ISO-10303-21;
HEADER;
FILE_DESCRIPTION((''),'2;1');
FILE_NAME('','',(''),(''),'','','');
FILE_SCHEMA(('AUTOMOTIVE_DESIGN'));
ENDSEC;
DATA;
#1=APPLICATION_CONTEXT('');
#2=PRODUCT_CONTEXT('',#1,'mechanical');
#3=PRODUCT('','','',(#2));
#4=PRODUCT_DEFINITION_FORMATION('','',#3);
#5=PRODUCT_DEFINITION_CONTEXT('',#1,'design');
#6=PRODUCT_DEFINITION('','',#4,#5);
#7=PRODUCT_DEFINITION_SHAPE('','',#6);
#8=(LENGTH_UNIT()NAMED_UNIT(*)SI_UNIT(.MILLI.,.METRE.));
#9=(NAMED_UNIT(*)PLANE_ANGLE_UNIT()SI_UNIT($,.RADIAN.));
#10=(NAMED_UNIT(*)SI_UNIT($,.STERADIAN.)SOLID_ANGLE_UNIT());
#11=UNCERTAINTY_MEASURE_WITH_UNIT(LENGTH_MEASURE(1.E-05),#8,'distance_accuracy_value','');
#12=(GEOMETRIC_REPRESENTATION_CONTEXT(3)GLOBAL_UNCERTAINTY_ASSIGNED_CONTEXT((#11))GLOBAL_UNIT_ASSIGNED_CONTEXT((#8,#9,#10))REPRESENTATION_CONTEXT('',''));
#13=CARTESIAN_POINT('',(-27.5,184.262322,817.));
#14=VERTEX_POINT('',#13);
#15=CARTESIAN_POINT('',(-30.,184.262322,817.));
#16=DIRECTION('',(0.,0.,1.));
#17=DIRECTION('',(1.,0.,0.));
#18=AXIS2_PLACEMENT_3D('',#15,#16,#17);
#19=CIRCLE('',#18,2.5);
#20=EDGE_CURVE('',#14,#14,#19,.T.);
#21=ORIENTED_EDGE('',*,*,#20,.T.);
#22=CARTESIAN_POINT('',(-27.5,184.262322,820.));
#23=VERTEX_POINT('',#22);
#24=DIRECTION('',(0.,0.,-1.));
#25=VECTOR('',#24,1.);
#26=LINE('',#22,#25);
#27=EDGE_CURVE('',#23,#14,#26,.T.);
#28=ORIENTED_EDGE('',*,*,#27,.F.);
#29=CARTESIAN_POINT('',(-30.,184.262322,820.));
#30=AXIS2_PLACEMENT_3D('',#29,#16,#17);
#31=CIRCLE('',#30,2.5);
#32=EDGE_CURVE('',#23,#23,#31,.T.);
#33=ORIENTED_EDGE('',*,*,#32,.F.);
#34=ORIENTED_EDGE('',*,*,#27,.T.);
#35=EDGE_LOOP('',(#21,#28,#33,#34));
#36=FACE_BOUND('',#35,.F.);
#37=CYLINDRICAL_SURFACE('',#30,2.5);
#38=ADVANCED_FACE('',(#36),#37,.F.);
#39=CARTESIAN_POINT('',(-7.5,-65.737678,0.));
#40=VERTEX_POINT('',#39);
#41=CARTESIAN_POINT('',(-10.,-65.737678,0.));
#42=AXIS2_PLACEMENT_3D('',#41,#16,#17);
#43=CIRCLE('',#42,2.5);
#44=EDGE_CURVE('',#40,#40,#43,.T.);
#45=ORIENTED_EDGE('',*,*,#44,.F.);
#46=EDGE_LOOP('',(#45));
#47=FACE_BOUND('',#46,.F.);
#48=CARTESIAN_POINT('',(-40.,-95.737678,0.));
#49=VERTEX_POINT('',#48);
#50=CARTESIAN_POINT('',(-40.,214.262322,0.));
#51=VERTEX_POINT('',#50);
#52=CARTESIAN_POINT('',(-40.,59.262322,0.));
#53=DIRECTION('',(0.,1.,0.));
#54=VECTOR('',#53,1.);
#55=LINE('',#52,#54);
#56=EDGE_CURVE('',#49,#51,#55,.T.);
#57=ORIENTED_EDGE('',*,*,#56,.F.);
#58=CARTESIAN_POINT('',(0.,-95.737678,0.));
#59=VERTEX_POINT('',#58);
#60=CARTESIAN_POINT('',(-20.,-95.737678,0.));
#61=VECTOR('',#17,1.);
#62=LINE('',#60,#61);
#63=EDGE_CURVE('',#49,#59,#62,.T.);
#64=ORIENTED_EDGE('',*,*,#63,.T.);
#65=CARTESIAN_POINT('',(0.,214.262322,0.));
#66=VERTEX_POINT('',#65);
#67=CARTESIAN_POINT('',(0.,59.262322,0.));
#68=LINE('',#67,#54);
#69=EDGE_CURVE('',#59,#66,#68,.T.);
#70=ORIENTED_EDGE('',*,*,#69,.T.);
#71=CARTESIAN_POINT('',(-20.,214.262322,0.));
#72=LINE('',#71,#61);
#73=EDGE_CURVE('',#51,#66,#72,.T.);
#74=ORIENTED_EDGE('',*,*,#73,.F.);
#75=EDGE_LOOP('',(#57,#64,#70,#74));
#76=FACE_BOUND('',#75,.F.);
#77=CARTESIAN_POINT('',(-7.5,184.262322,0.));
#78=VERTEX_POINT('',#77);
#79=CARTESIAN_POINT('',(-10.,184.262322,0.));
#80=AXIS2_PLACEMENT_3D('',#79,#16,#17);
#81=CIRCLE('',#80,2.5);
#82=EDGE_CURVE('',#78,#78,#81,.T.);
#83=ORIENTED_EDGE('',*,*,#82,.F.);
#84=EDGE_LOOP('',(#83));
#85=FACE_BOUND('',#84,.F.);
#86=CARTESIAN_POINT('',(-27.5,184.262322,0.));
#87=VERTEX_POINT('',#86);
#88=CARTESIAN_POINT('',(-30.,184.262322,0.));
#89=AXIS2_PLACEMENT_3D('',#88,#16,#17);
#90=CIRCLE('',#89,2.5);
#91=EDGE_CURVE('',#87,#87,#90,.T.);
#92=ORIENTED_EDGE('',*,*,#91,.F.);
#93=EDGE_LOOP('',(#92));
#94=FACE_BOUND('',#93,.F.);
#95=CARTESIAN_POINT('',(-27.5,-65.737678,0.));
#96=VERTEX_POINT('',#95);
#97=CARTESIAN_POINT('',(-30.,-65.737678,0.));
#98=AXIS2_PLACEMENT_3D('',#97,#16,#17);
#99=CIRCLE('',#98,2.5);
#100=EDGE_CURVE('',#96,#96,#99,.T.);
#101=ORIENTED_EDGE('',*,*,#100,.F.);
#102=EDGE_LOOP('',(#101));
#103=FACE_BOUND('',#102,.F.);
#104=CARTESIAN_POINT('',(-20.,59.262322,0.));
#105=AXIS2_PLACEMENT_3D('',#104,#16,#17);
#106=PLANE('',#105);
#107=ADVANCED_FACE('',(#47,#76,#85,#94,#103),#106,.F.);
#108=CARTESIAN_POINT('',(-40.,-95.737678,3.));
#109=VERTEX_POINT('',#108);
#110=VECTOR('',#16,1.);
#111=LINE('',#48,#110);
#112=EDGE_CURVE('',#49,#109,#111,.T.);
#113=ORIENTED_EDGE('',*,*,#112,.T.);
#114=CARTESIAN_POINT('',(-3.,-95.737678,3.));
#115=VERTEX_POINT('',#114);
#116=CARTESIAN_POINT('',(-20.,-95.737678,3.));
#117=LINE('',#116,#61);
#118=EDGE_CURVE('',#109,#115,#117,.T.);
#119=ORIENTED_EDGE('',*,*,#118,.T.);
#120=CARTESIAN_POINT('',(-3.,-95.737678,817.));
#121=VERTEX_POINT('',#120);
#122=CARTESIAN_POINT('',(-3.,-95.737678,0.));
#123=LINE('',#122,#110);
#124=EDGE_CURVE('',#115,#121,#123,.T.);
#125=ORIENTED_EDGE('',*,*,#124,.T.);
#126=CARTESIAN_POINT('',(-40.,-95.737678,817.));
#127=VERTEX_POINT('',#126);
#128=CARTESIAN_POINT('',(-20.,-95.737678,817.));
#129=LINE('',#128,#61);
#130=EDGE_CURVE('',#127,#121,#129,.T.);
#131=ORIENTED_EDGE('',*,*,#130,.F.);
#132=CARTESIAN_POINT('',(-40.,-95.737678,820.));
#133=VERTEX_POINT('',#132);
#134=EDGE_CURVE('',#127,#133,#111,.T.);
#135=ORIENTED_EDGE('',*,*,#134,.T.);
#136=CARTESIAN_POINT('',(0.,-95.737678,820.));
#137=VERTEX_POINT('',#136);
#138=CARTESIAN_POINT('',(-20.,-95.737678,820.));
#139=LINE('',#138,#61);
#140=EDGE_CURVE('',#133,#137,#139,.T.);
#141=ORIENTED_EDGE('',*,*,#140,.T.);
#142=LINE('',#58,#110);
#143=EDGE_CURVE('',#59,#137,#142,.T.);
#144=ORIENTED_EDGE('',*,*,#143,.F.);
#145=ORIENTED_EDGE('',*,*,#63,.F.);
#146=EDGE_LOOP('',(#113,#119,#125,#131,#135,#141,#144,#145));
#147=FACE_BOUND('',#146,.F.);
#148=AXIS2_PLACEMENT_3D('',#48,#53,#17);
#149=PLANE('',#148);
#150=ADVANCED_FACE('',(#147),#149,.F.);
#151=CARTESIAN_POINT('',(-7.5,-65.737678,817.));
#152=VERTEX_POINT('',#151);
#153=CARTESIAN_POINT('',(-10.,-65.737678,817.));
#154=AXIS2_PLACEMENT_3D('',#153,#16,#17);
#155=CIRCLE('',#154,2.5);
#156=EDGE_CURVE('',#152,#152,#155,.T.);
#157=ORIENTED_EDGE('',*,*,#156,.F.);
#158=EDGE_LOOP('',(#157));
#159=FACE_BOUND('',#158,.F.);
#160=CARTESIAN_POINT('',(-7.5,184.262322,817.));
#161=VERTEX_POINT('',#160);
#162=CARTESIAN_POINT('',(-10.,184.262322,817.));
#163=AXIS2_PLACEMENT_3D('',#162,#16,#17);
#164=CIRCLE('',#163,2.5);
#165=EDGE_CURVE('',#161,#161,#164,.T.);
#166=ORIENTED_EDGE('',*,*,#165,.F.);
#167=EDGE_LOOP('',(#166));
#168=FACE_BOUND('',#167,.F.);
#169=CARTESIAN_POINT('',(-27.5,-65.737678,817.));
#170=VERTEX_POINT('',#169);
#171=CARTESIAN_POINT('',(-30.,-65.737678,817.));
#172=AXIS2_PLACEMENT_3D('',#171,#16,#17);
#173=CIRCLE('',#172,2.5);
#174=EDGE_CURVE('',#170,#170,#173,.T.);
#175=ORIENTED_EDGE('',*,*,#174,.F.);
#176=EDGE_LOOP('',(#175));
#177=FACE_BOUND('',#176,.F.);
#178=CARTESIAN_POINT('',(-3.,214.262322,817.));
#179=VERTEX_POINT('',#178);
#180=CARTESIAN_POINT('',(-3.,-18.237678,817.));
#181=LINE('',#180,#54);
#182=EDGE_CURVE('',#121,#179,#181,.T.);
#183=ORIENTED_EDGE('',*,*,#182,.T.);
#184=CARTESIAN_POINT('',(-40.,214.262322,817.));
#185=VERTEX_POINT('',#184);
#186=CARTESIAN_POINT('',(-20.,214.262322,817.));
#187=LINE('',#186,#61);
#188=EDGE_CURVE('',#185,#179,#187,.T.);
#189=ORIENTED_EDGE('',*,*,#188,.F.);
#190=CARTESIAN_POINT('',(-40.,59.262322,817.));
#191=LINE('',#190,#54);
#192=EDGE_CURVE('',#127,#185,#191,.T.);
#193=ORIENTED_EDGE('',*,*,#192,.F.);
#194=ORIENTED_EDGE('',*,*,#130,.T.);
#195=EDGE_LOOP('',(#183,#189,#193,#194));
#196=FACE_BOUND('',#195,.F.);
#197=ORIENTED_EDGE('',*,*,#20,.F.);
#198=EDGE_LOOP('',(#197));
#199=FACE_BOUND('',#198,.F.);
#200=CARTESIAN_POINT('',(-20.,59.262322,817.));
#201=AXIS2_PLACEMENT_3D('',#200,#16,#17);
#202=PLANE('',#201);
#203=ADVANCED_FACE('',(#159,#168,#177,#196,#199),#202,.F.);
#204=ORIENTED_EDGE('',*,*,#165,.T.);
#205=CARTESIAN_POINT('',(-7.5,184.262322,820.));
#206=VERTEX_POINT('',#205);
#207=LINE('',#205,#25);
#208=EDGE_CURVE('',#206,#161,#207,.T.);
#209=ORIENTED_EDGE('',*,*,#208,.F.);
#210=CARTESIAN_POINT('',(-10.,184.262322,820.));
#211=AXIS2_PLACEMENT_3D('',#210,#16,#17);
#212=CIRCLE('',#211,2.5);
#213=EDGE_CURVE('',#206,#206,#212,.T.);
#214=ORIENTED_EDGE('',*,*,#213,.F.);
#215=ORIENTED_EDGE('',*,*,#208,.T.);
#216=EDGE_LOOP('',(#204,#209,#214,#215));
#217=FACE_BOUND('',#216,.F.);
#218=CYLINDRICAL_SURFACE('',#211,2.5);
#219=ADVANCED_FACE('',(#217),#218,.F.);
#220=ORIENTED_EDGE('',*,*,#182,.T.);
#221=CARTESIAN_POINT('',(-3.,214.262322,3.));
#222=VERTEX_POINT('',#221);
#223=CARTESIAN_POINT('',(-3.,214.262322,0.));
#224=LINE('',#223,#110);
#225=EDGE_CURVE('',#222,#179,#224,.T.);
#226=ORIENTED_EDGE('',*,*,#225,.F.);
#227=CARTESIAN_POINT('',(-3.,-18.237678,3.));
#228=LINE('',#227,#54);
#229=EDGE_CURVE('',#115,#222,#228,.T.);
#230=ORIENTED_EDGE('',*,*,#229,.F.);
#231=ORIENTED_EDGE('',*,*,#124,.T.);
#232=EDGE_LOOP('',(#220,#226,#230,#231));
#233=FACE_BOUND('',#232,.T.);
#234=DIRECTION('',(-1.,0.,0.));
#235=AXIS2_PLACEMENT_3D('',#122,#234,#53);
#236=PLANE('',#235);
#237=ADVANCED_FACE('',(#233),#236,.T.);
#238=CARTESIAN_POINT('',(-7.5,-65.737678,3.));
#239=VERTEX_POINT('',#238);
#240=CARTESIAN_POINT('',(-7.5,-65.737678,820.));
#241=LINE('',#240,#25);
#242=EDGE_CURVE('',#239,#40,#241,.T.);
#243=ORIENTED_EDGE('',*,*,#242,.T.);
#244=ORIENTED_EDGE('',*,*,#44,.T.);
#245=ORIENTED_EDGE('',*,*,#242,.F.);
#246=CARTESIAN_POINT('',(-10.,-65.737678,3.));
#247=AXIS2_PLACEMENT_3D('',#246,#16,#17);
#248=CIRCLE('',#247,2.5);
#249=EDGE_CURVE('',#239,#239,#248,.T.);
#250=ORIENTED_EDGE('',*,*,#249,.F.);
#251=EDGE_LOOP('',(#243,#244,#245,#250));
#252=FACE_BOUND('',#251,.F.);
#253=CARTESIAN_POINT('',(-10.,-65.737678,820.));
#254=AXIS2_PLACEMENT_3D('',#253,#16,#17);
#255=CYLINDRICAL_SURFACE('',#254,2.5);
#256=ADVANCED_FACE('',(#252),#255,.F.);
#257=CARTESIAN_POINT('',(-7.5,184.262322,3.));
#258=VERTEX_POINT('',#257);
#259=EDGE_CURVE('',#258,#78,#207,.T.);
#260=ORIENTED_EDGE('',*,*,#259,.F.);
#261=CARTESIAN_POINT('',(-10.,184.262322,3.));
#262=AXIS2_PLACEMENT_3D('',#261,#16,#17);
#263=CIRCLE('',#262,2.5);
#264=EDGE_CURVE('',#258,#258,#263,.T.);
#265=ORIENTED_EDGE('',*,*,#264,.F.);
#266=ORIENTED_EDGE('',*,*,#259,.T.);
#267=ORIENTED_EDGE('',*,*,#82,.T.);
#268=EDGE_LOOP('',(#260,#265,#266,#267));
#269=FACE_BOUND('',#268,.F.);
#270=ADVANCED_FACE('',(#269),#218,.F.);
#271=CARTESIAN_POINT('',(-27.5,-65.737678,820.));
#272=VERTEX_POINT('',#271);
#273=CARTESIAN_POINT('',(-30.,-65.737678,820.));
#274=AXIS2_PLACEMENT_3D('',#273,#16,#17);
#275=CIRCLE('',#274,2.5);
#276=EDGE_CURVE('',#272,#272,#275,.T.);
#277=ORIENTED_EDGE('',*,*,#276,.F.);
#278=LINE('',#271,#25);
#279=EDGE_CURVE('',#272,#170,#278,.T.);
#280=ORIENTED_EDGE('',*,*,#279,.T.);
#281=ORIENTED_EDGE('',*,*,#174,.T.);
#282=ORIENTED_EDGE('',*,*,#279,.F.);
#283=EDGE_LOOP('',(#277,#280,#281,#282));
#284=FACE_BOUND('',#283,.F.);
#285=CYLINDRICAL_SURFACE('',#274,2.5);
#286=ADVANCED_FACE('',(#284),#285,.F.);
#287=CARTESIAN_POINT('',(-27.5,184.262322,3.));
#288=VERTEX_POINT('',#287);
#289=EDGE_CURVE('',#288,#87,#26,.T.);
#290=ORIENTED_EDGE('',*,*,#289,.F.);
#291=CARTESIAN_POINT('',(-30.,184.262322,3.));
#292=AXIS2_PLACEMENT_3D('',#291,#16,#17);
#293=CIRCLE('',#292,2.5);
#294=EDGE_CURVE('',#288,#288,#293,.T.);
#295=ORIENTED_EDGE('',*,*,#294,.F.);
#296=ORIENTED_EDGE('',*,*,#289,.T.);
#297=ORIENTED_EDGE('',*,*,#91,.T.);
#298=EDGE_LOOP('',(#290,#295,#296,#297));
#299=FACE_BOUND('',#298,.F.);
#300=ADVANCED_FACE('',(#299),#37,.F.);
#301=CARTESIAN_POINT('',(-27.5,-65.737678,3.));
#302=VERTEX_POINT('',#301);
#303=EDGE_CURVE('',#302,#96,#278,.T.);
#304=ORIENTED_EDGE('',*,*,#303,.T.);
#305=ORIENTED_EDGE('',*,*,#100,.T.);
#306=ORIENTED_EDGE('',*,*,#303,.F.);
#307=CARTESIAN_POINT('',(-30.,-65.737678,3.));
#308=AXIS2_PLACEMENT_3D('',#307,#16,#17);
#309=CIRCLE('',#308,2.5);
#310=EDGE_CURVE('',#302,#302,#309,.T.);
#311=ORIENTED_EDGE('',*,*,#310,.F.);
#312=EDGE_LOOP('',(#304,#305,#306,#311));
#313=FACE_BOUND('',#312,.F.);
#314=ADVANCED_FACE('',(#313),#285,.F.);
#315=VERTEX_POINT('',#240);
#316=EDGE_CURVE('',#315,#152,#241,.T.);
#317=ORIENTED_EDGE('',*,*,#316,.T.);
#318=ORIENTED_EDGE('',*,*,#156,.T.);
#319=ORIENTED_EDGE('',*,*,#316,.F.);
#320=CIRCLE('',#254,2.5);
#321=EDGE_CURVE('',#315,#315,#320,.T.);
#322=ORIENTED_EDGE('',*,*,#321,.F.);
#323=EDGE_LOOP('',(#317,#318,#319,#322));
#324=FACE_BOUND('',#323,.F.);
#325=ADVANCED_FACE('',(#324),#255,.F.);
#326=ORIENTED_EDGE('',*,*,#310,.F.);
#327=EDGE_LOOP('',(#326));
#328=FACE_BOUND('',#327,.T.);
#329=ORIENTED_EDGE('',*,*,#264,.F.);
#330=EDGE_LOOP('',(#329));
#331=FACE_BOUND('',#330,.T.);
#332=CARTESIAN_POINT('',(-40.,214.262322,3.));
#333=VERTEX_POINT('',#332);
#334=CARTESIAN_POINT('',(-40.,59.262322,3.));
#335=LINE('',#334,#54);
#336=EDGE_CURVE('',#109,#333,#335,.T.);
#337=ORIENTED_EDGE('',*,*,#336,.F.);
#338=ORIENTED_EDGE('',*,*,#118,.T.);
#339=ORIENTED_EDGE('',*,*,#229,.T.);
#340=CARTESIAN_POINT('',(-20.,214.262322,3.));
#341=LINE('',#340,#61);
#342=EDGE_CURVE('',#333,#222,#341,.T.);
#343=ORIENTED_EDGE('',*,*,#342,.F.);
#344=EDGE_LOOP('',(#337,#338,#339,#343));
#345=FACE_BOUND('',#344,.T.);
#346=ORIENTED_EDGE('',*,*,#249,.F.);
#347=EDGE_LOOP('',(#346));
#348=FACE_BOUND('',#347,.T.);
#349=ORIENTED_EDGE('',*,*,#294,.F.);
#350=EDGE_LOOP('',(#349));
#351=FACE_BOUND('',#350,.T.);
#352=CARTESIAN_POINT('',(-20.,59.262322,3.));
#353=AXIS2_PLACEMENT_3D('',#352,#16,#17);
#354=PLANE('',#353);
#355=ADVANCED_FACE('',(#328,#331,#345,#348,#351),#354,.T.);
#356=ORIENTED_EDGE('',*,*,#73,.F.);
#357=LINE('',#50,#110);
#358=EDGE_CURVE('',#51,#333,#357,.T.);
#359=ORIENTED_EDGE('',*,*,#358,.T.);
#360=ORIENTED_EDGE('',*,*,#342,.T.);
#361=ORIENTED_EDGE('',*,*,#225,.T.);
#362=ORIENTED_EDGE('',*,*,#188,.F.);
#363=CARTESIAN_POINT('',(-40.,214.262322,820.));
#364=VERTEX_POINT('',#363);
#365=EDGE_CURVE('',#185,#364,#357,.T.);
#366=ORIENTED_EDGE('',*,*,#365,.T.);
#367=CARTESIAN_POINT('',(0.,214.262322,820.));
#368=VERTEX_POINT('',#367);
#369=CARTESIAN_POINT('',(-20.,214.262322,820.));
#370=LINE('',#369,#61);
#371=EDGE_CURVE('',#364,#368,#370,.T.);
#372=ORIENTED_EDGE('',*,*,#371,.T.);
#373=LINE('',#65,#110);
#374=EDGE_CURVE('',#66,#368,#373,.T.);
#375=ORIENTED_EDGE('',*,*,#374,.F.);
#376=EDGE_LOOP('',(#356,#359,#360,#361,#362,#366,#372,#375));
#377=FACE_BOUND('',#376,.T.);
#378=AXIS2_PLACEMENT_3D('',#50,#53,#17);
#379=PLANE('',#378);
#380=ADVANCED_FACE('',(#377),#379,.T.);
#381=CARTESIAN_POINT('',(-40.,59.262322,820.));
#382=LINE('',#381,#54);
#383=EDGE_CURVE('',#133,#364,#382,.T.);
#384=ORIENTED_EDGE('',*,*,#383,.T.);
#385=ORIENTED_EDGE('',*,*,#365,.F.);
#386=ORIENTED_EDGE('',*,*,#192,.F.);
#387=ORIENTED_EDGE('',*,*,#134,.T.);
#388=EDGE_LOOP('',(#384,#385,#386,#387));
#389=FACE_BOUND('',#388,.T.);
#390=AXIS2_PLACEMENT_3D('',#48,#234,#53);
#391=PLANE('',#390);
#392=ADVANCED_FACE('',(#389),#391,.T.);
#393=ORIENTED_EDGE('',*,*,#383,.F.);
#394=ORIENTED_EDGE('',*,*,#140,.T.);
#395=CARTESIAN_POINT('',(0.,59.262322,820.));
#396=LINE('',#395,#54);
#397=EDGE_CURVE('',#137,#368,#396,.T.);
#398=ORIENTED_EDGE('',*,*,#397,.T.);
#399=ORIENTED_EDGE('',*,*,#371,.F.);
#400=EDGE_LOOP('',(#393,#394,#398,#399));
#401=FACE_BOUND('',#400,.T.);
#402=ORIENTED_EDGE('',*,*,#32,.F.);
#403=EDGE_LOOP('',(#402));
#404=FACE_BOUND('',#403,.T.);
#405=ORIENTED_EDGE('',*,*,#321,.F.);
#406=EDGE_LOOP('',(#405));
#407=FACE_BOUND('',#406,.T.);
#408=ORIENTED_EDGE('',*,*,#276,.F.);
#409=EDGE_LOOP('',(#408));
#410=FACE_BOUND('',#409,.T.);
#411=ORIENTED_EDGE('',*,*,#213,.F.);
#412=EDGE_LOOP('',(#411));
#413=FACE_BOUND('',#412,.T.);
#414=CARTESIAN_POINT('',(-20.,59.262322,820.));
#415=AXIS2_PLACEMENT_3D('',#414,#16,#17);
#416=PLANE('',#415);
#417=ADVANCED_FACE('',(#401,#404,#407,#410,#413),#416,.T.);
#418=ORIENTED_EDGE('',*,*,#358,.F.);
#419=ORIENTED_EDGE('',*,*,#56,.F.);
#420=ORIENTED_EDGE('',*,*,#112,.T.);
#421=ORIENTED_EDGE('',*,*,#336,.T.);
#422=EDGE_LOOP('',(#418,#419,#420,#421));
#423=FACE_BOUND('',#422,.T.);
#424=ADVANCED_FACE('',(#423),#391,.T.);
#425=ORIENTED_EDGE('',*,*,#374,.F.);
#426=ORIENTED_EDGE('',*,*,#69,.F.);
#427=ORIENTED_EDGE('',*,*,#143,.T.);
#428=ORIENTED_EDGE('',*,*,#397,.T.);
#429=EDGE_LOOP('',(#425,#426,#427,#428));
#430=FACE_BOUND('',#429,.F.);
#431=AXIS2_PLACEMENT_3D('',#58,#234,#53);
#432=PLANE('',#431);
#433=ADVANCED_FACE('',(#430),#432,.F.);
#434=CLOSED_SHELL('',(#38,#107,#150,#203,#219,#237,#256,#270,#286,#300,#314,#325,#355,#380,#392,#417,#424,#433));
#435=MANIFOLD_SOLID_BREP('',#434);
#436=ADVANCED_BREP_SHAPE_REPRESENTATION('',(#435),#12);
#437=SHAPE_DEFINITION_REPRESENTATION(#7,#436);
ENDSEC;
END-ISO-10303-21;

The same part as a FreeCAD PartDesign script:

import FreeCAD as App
import Part
import Sketcher
from FreeCAD import Vector


def faces_at(feature, points):
    """Names of the faces that lie closest to the given points."""
    faces = feature.Shape.Faces
    near = lambda p: min(range(len(faces)), key=lambda i: faces[i].distToShape(Part.Vertex(*p))[0])
    return sorted({f"Face{near(p) + 1}" for p in points})

doc = App.newDocument("Part")
body = doc.addObject("PartDesign::Body", "Body")

sketch1 = body.newObject("Sketcher::SketchObject", "Sketch")
sketch1.AttachmentSupport = (doc.getObject("XY_Plane"), [""])
sketch1.MapMode = "FlatFace"
sketch1.addGeometry([
    Part.LineSegment(Vector(-40, 214, 0), Vector(-40, -96, 0)),
    Part.LineSegment(Vector(-40, -96, 0), Vector(0, -96, 0)),
    Part.LineSegment(Vector(0, -96, 0), Vector(0, 214, 0)),
    Part.LineSegment(Vector(0, 214, 0), Vector(-40, 214, 0)),
], False)
sketch1.addConstraint([
    Sketcher.Constraint("Coincident", 0, 2, 1, 1),
    Sketcher.Constraint("Coincident", 1, 2, 2, 1),
    Sketcher.Constraint("Coincident", 2, 2, 3, 1),
    Sketcher.Constraint("Coincident", 3, 2, 0, 1),
    Sketcher.Constraint("Vertical", 0),
    Sketcher.Constraint("Horizontal", 1),
    Sketcher.Constraint("Vertical", 2),
    Sketcher.Constraint("Horizontal", 3),
    Sketcher.Constraint("PointOnObject", 1, 2, -2),
    Sketcher.Constraint("DistanceX", 1, 1, 1, 2, 40.0),
    Sketcher.Constraint("DistanceY", 0, 2, 0, 1, 310.0),
    Sketcher.Constraint("DistanceY", 0, 2, -1, 1, 95.737678),
])
pad1 = body.newObject("PartDesign::Pad", "Pad")
pad1.Profile = sketch1
pad1.Length = 820
doc.recompute()

thickness = body.newObject("PartDesign::Thickness", "Thickness")
thickness.Base = (pad1, faces_at(pad1, [(-20, 214.262, 410), (-20, -95.738, 410), (-40, 59.262, 410)]))
thickness.Value = 3
thickness.Reversed = True
thickness.Join = "Arc"

sketch2 = body.newObject("Sketcher::SketchObject", "Sketch001")
sketch2.AttachmentSupport = (doc.getObject("XY_Plane"), [""])
sketch2.MapMode = "FlatFace"
sketch2.AttachmentOffset = App.Placement(Vector(0, 0, 820), App.Rotation())
sketch2.addGeometry([
    Part.Circle(Vector(-30, 184.3, 0), Vector(0, 0, 1), 2.5),
    Part.Circle(Vector(-10, 184.3, 0), Vector(0, 0, 1), 2.5),
    Part.Circle(Vector(-30, -65.7, 0), Vector(0, 0, 1), 2.5),
    Part.Circle(Vector(-10, -65.7, 0), Vector(0, 0, 1), 2.5),
], False)
sketch2.addConstraint([
    Sketcher.Constraint("Equal", 0, 1),
    Sketcher.Constraint("Equal", 1, 2),
    Sketcher.Constraint("Equal", 2, 3),
    Sketcher.Constraint("Horizontal", 0, 3, 1, 3),
    Sketcher.Constraint("Horizontal", 2, 3, 3, 3),
    Sketcher.Constraint("Vertical", 0, 3, 2, 3),
    Sketcher.Constraint("Vertical", 1, 3, 3, 3),
    Sketcher.Constraint("Diameter", 0, 5.0),
    Sketcher.Constraint("DistanceX", 0, 3, -1, 1, 30.0),
    Sketcher.Constraint("DistanceX", 1, 3, -1, 1, 10.0),
    Sketcher.Constraint("DistanceY", 2, 3, 0, 3, 250.0),
    Sketcher.Constraint("DistanceY", 2, 3, -1, 1, 65.737678),
])
pocket1 = body.newObject("PartDesign::Pocket", "Pocket")
pocket1.Profile = sketch2
pocket1.Type = "ThroughAll"

doc.recompute()
